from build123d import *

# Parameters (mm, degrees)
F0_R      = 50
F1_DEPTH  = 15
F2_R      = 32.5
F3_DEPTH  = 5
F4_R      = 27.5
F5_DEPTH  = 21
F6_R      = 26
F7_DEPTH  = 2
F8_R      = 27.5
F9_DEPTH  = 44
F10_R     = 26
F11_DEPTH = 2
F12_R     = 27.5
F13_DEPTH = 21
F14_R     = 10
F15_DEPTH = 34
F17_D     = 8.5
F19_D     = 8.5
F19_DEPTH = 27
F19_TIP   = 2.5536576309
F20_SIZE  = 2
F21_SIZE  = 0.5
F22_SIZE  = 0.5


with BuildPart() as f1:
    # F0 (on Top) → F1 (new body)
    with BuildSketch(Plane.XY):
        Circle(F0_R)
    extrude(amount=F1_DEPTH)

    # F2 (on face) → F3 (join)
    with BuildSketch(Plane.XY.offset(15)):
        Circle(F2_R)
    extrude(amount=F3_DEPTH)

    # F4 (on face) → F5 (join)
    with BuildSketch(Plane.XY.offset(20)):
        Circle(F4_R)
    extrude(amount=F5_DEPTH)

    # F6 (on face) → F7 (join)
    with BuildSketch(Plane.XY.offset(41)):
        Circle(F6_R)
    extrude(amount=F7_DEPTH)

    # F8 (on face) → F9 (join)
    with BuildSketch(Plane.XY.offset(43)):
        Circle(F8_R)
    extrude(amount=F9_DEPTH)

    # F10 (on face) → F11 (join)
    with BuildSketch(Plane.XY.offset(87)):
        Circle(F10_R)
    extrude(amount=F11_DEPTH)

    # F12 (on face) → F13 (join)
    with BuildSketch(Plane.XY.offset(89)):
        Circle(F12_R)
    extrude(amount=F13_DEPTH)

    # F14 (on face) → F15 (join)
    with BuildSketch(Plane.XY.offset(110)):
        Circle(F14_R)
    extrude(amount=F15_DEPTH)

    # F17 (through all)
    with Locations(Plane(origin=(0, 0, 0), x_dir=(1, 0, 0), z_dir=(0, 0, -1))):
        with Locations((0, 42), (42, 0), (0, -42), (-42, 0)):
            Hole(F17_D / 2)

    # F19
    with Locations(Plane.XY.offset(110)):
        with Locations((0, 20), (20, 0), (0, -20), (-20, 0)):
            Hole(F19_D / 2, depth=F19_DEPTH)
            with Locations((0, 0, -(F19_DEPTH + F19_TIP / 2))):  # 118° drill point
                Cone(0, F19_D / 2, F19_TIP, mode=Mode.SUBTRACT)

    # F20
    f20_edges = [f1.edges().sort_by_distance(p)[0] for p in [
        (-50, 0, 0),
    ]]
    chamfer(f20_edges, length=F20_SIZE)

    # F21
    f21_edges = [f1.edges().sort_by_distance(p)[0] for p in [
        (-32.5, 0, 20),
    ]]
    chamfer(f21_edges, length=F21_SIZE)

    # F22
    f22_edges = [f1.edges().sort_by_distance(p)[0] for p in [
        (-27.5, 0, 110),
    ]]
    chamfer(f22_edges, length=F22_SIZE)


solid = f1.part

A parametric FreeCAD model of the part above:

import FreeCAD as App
import Part
import Sketcher
from FreeCAD import Vector


def edges_at(feature, points):
    """Names of the edges that pass closest to the given points."""
    edges = feature.Shape.Edges
    near = lambda p: min(range(len(edges)), key=lambda i: edges[i].distToShape(Part.Vertex(*p))[0])
    return sorted({f"Edge{near(p) + 1}" for p in points})

doc = App.newDocument("Part")
body = doc.addObject("PartDesign::Body", "Body")

# Sketch on XY plane
sketch1 = doc.addObject("Sketcher::SketchObject", "Sketch")
body.addObject(sketch1)
sketch1.AttachmentSupport = (doc.XY_Plane, [""])
sketch1.MapMode = "FlatFace"
sketch1.addGeometry(Part.Circle(Vector(0, 0, 0), Vector(0, 0, 1), 50), False)
sketch1.addConstraint(Sketcher.Constraint("Coincident", 0, 3, -1, 1))
sketch1.addConstraint(Sketcher.Constraint("Diameter", 0, 100.0))
pad1 = doc.addObject("PartDesign::Pad", "Pad")
body.addObject(pad1)
pad1.Profile = sketch1
pad1.Length = 15

# Sketch on XY plane
sketch2 = doc.addObject("Sketcher::SketchObject", "Sketch001")
body.addObject(sketch2)
sketch2.AttachmentSupport = (doc.XY_Plane, [""])
sketch2.MapMode = "FlatFace"
sketch2.AttachmentOffset = App.Placement(Vector(0, 0, 15), App.Rotation())
sketch2.addGeometry(Part.Circle(Vector(0, 0, 0), Vector(0, 0, 1), 32.5), False)
sketch2.addConstraint(Sketcher.Constraint("Coincident", 0, 3, -1, 1))
sketch2.addConstraint(Sketcher.Constraint("Diameter", 0, 65.0))
pad2 = doc.addObject("PartDesign::Pad", "Pad001")
body.addObject(pad2)
pad2.Profile = sketch2
pad2.Length = 5

# Sketch on XY plane
sketch3 = doc.addObject("Sketcher::SketchObject", "Sketch002")
body.addObject(sketch3)
sketch3.AttachmentSupport = (doc.XY_Plane, [""])
sketch3.MapMode = "FlatFace"
sketch3.AttachmentOffset = App.Placement(Vector(0, 0, 20), App.Rotation())
sketch3.addGeometry(Part.Circle(Vector(0, 0, 0), Vector(0, 0, 1), 27.5), False)
sketch3.addConstraint(Sketcher.Constraint("Coincident", 0, 3, -1, 1))
sketch3.addConstraint(Sketcher.Constraint("Diameter", 0, 55.0))
pad3 = doc.addObject("PartDesign::Pad", "Pad002")
body.addObject(pad3)
pad3.Profile = sketch3
pad3.Length = 21

# Sketch on XY plane
sketch4 = doc.addObject("Sketcher::SketchObject", "Sketch003")
body.addObject(sketch4)
sketch4.AttachmentSupport = (doc.XY_Plane, [""])
sketch4.MapMode = "FlatFace"
sketch4.AttachmentOffset = App.Placement(Vector(0, 0, 41), App.Rotation())
sketch4.addGeometry(Part.Circle(Vector(0, 0, 0), Vector(0, 0, 1), 26), False)
sketch4.addConstraint(Sketcher.Constraint("Coincident", 0, 3, -1, 1))
sketch4.addConstraint(Sketcher.Constraint("Diameter", 0, 52.0))
pad4 = doc.addObject("PartDesign::Pad", "Pad003")
body.addObject(pad4)
pad4.Profile = sketch4
pad4.Length = 2

# Sketch on XY plane
sketch5 = doc.addObject("Sketcher::SketchObject", "Sketch004")
body.addObject(sketch5)
sketch5.AttachmentSupport = (doc.XY_Plane, [""])
sketch5.MapMode = "FlatFace"
sketch5.AttachmentOffset = App.Placement(Vector(0, 0, 43), App.Rotation())
sketch5.addGeometry(Part.Circle(Vector(0, 0, 0), Vector(0, 0, 1), 27.5), False)
sketch5.addConstraint(Sketcher.Constraint("Coincident", 0, 3, -1, 1))
sketch5.addConstraint(Sketcher.Constraint("Diameter", 0, 55.0))
pad5 = doc.addObject("PartDesign::Pad", "Pad004")
body.addObject(pad5)
pad5.Profile = sketch5
pad5.Length = 44

# Sketch on XY plane
sketch6 = doc.addObject("Sketcher::SketchObject", "Sketch005")
body.addObject(sketch6)
sketch6.AttachmentSupport = (doc.XY_Plane, [""])
sketch6.MapMode = "FlatFace"
sketch6.AttachmentOffset = App.Placement(Vector(0, 0, 87), App.Rotation())
sketch6.addGeometry(Part.Circle(Vector(0, 0, 0), Vector(0, 0, 1), 26), False)
sketch6.addConstraint(Sketcher.Constraint("Coincident", 0, 3, -1, 1))
sketch6.addConstraint(Sketcher.Constraint("Diameter", 0, 52.0))
pad6 = doc.addObject("PartDesign::Pad", "Pad005")
body.addObject(pad6)
pad6.Profile = sketch6
pad6.Length = 2

# Sketch on XY plane
sketch7 = doc.addObject("Sketcher::SketchObject", "Sketch006")
body.addObject(sketch7)
sketch7.AttachmentSupport = (doc.XY_Plane, [""])
sketch7.MapMode = "FlatFace"
sketch7.AttachmentOffset = App.Placement(Vector(0, 0, 89), App.Rotation())
sketch7.addGeometry(Part.Circle(Vector(0, 0, 0), Vector(0, 0, 1), 27.5), False)
sketch7.addConstraint(Sketcher.Constraint("Coincident", 0, 3, -1, 1))
sketch7.addConstraint(Sketcher.Constraint("Diameter", 0, 55.0))
pad7 = doc.addObject("PartDesign::Pad", "Pad006")
body.addObject(pad7)
pad7.Profile = sketch7
pad7.Length = 21

# Sketch on XY plane
sketch8 = doc.addObject("Sketcher::SketchObject", "Sketch007")
body.addObject(sketch8)
sketch8.AttachmentSupport = (doc.XY_Plane, [""])
sketch8.MapMode = "FlatFace"
sketch8.AttachmentOffset = App.Placement(Vector(0, 0, 110), App.Rotation())
sketch8.addGeometry(Part.Circle(Vector(0, 0, 0), Vector(0, 0, 1), 10), False)
sketch8.addConstraint(Sketcher.Constraint("Coincident", 0, 3, -1, 1))
sketch8.addConstraint(Sketcher.Constraint("Diameter", 0, 20.0))
pad8 = doc.addObject("PartDesign::Pad", "Pad007")
body.addObject(pad8)
pad8.Profile = sketch8
pad8.Length = 34

# Sketch on XY plane
sketch9 = doc.addObject("Sketcher::SketchObject", "Sketch008")
body.addObject(sketch9)
sketch9.AttachmentSupport = (doc.XY_Plane, [""])
sketch9.MapMode = "FlatFace"
sketch9.addGeometry(Part.Circle(Vector(0, -42, 0), Vector(0, 0, 1), 4.25), False)
sketch9.addGeometry(Part.Circle(Vector(42, 0, 0), Vector(0, 0, 1), 4.25), False)
sketch9.addGeometry(Part.Circle(Vector(0, 42, 0), Vector(0, 0, 1), 4.25), False)
sketch9.addGeometry(Part.Circle(Vector(-42, 0, 0), Vector(0, 0, 1), 4.25), False)
sketch9.addConstraint(Sketcher.Constraint("Equal", 0, 1))
sketch9.addConstraint(Sketcher.Constraint("Equal", 1, 2))
sketch9.addConstraint(Sketcher.Constraint("Equal", 2, 3))
sketch9.addConstraint(Sketcher.Constraint("Symmetric", 0, 3, 2, 3, -1, 1))
sketch9.addConstraint(Sketcher.Constraint("Symmetric", 1, 3, 3, 3, -1, 1))
sketch9.addConstraint(Sketcher.Constraint("PointOnObject", 0, 3, -2))
sketch9.addConstraint(Sketcher.Constraint("PointOnObject", 1, 3, -1))
sketch9.addConstraint(Sketcher.Constraint("Diameter", 0, 8.5))
sketch9.addConstraint(Sketcher.Constraint("DistanceY", 0, 3, -1, 1, 42.0))
sketch9.addConstraint(Sketcher.Constraint("DistanceX", -1, 1, 1, 3, 42.0))
doc.recompute()
hole = doc.addObject("PartDesign::Hole", "Hole")
body.addObject(hole)
hole.Profile = sketch9
hole.ThreadType = "None"
hole.Diameter = 8.5
hole.DepthType = "ThroughAll"
hole.Reversed = True

# Sketch on XY plane
sketch10 = doc.addObject("Sketcher::SketchObject", "Sketch009")
body.addObject(sketch10)
sketch10.AttachmentSupport = (doc.XY_Plane, [""])
sketch10.MapMode = "FlatFace"
sketch10.AttachmentOffset = App.Placement(Vector(0, 0, 110), App.Rotation())
sketch10.addGeometry(Part.Circle(Vector(0, 20, 0), Vector(0, 0, 1), 4.25), False)
sketch10.addGeometry(Part.Circle(Vector(20, 0, 0), Vector(0, 0, 1), 4.25), False)
sketch10.addGeometry(Part.Circle(Vector(0, -20, 0), Vector(0, 0, 1), 4.25), False)
sketch10.addGeometry(Part.Circle(Vector(-20, 0, 0), Vector(0, 0, 1), 4.25), False)
sketch10.addConstraint(Sketcher.Constraint("Equal", 0, 1))
sketch10.addConstraint(Sketcher.Constraint("Equal", 1, 2))
sketch10.addConstraint(Sketcher.Constraint("Equal", 2, 3))
sketch10.addConstraint(Sketcher.Constraint("Symmetric", 0, 3, 2, 3, -1, 1))
sketch10.addConstraint(Sketcher.Constraint("Symmetric", 1, 3, 3, 3, -1, 1))
sketch10.addConstraint(Sketcher.Constraint("PointOnObject", 0, 3, -2))
sketch10.addConstraint(Sketcher.Constraint("PointOnObject", 1, 3, -1))
sketch10.addConstraint(Sketcher.Constraint("Diameter", 0, 8.5))
sketch10.addConstraint(Sketcher.Constraint("DistanceY", -1, 1, 0, 3, 20.0))
sketch10.addConstraint(Sketcher.Constraint("DistanceX", -1, 1, 1, 3, 20.0))
doc.recompute()
hole2 = doc.addObject("PartDesign::Hole", "Hole001")
body.addObject(hole2)
hole2.Profile = sketch10
hole2.ThreadType = "None"
hole2.Diameter = 8.5
hole2.DepthType = "Dimension"
hole2.Depth = 27
hole2.DrillPoint = "Angled"
hole2.DrillPointAngle = 118
doc.recompute()

chamfer = doc.addObject("PartDesign::Chamfer", "Chamfer")
body.addObject(chamfer)
chamfer.Base = (hole2, edges_at(hole2, [(-50, 0, 0)]))
chamfer.Size = 2
doc.recompute()

chamfer2 = doc.addObject("PartDesign::Chamfer", "Chamfer001")
body.addObject(chamfer2)
chamfer2.Base = (chamfer, edges_at(chamfer, [(-32.5, 0, 20)]))
chamfer2.Size = 0.5
doc.recompute()

chamfer3 = doc.addObject("PartDesign::Chamfer", "Chamfer002")
body.addObject(chamfer3)
chamfer3.Base = (chamfer2, edges_at(chamfer2, [(-27.5, 0, 110)]))
chamfer3.Size = 0.5

doc.recompute()
